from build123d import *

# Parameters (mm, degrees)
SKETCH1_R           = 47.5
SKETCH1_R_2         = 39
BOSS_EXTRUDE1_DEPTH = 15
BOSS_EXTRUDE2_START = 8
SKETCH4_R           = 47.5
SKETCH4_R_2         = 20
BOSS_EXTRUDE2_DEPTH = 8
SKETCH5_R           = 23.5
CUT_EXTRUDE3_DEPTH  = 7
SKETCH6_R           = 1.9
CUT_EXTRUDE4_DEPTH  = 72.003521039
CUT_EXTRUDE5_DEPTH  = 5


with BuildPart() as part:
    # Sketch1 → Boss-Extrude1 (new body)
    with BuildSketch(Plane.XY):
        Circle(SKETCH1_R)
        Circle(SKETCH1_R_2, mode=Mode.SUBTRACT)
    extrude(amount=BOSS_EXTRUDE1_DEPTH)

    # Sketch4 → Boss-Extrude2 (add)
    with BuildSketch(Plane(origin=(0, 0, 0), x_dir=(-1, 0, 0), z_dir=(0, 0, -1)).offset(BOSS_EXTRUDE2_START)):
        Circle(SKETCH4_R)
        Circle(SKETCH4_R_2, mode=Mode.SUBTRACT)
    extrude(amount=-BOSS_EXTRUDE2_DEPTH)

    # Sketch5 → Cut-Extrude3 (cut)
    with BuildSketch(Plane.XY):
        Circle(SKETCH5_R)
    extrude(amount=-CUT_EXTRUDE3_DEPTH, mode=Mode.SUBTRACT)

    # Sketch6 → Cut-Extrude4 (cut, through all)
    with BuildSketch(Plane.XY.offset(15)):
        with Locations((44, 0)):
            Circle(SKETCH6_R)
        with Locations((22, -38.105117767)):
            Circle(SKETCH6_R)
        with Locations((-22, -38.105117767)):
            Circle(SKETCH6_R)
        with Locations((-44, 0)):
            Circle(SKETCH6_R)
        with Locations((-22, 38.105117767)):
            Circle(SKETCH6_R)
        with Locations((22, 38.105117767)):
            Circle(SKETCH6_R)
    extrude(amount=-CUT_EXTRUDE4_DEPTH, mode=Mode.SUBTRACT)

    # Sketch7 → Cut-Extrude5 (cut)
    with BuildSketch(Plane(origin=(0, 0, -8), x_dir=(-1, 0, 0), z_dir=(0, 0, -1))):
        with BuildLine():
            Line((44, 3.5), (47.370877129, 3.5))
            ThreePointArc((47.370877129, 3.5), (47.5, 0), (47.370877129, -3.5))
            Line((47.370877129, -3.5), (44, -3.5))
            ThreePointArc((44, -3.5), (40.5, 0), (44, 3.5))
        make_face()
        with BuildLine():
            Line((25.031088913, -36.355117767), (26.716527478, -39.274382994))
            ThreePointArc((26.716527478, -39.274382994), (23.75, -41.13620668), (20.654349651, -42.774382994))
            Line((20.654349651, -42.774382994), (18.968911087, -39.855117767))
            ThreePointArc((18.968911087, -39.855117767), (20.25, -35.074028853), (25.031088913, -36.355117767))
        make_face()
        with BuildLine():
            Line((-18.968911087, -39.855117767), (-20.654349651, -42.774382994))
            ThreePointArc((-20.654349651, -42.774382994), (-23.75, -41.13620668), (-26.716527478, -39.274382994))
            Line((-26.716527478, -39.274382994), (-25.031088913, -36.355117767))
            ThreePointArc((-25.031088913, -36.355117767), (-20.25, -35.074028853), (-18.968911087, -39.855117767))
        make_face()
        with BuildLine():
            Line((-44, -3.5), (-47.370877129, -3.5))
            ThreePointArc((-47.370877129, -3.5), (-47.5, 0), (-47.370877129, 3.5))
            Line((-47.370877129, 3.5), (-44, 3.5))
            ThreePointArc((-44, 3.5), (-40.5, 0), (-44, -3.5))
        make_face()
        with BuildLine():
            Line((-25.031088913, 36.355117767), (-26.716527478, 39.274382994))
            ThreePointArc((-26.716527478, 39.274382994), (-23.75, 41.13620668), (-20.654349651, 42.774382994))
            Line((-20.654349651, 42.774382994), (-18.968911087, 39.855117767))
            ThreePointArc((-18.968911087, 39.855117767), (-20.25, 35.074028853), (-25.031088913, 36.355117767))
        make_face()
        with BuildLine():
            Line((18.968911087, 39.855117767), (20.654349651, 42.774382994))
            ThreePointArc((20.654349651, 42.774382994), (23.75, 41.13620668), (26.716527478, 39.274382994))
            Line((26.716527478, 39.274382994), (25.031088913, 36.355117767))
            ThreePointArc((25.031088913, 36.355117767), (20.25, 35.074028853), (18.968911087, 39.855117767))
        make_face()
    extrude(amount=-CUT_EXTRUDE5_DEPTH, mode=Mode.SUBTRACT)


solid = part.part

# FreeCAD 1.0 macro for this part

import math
import FreeCAD as App
import Part
import Sketcher

V = App.Vector
Q = App.Units.Quantity

doc = App.newDocument("Part")
body = doc.addObject("PartDesign::Body", "Body")

# Sketch on XY plane
sketch1 = doc.addObject("Sketcher::SketchObject", "Sketch")
body.addObject(sketch1)
sketch1.AttachmentSupport = (doc.XY_Plane, [""])
sketch1.MapMode = "FlatFace"
sketch1.addGeometry(Part.Circle(V(0, 0, 0), V(0, 0, 1), 48), False)
sketch1.addGeometry(Part.Circle(V(0, 0, 0), V(0, 0, 1), 39), False)
sketch1.addConstraint(Sketcher.Constraint("Coincident", 0, 3, -1, 1))
sketch1.addConstraint(Sketcher.Constraint("Coincident", 1, 3, -1, 1))
sketch1.addConstraint(Sketcher.Constraint("Diameter", 0, Q("95 mm")))
sketch1.addConstraint(Sketcher.Constraint("Diameter", 1, Q("78 mm")))
pad1 = doc.addObject("PartDesign::Pad", "Pad")
body.addObject(pad1)
pad1.Profile = sketch1
pad1.Length = 15

# Sketch on XY plane
sketch2 = doc.addObject("Sketcher::SketchObject", "Sketch001")
body.addObject(sketch2)
sketch2.AttachmentSupport = (doc.XY_Plane, [""])
sketch2.MapMode = "FlatFace"
sketch2.AttachmentOffset = App.Placement(V(0, 0, -8), App.Rotation())
sketch2.addGeometry(Part.Circle(V(0, 0, 0), V(0, 0, 1), 48), False)
sketch2.addGeometry(Part.Circle(V(0, 0, 0), V(0, 0, 1), 20), False)
sketch2.addConstraint(Sketcher.Constraint("Coincident", 0, 3, -1, 1))
sketch2.addConstraint(Sketcher.Constraint("Coincident", 1, 3, -1, 1))
sketch2.addConstraint(Sketcher.Constraint("Diameter", 0, Q("95 mm")))
sketch2.addConstraint(Sketcher.Constraint("Diameter", 1, Q("40 mm")))
pad2 = doc.addObject("PartDesign::Pad", "Pad001")
body.addObject(pad2)
pad2.Profile = sketch2
pad2.Length = 8

# Sketch on XY plane
sketch3 = doc.addObject("Sketcher::SketchObject", "Sketch002")
body.addObject(sketch3)
sketch3.AttachmentSupport = (doc.XY_Plane, [""])
sketch3.MapMode = "FlatFace"
sketch3.addGeometry(Part.Circle(V(0, 0, 0), V(0, 0, 1), 24), False)
sketch3.addConstraint(Sketcher.Constraint("Coincident", 0, 3, -1, 1))
sketch3.addConstraint(Sketcher.Constraint("Diameter", 0, Q("47 mm")))
pocket1 = doc.addObject("PartDesign::Pocket", "Pocket")
body.addObject(pocket1)
pocket1.Profile = sketch3
pocket1.Length = 7

# Sketch on XY plane
sketch4 = doc.addObject("Sketcher::SketchObject", "Sketch003")
body.addObject(sketch4)
sketch4.AttachmentSupport = (doc.XY_Plane, [""])
sketch4.MapMode = "FlatFace"
sketch4.AttachmentOffset = App.Placement(V(0, 0, 15), App.Rotation())
sketch4.addGeometry(Part.Circle(V(44, 0, 0), V(0, 0, 1), 1.9), False)
sketch4.addGeometry(Part.Circle(V(22, -38.1, 0), V(0, 0, 1), 1.9), False)
sketch4.addGeometry(Part.Circle(V(-22, -38.1, 0), V(0, 0, 1), 1.9), False)
sketch4.addGeometry(Part.Circle(V(-44, 0, 0), V(0, 0, 1), 1.9), False)
sketch4.addGeometry(Part.Circle(V(-22, 38.1, 0), V(0, 0, 1), 1.9), False)
sketch4.addGeometry(Part.Circle(V(22, 38.1, 0), V(0, 0, 1), 1.9), False)
sketch4.addConstraint(Sketcher.Constraint("Equal", 0, 1))
sketch4.addConstraint(Sketcher.Constraint("Equal", 1, 2))
sketch4.addConstraint(Sketcher.Constraint("Equal", 2, 3))
sketch4.addConstraint(Sketcher.Constraint("Equal", 3, 4))
sketch4.addConstraint(Sketcher.Constraint("Equal", 4, 5))
sketch4.addConstraint(Sketcher.Constraint("Symmetric", 0, 3, 3, 3, -1, 1))
sketch4.addConstraint(Sketcher.Constraint("Symmetric", 1, 3, 4, 3, -1, 1))
sketch4.addConstraint(Sketcher.Constraint("Symmetric", 2, 3, 5, 3, -1, 1))
sketch4.addConstraint(Sketcher.Constraint("Symmetric", 1, 3, 2, 3, -2))
sketch4.addConstraint(Sketcher.Constraint("PointOnObject", 0, 3, -1))
sketch4.addConstraint(Sketcher.Constraint("Diameter", 0, Q("3.8 mm")))
sketch4.addConstraint(Sketcher.Constraint("DistanceX", -1, 1, 0, 3, Q("44 mm")))
sketch4.addConstraint(Sketcher.Constraint("DistanceX", -1, 1, 1, 3, Q("22 mm")))
sketch4.addConstraint(Sketcher.Constraint("DistanceY", 1, 3, -1, 1, Q("38.105118 mm")))
pocket2 = doc.addObject("PartDesign::Pocket", "Pocket001")
body.addObject(pocket2)
pocket2.Profile = sketch4
pocket2.Type = "ThroughAll"

# Sketch on XY plane
sketch5 = doc.addObject("Sketcher::SketchObject", "Sketch004")
body.addObject(sketch5)
sketch5.AttachmentSupport = (doc.XY_Plane, [""])
sketch5.MapMode = "FlatFace"
sketch5.AttachmentOffset = App.Placement(V(0, 0, -8), App.Rotation())
sketch5.addGeometry(Part.LineSegment(V(-47.4, 3.5, 0), V(-44, 3.5, 0)), False)
sketch5.addGeometry(Part.ArcOfCircle(Part.Circle(V(-44, 0, 0), V(0, 0, 1), 3.5), math.radians(-90), math.radians(90)), False)
sketch5.addGeometry(Part.LineSegment(V(-44, -3.5, 0), V(-47.4, -3.5, 0)), False)
sketch5.addGeometry(Part.ArcOfCircle(Part.Circle(V(0, 0, 0), V(0, 0, 1), 47.5), math.radians(175.77), math.radians(184.23)), False)
sketch5.addGeometry(Part.LineSegment(V(-26.7, -39.3, 0), V(-25, -36.4, 0)), False)
sketch5.addGeometry(Part.ArcOfCircle(Part.Circle(V(-22, -38.1, 0), V(0, 0, 1), 3.5), math.radians(-30), math.radians(150)), False)
sketch5.addGeometry(Part.LineSegment(V(-19, -39.9, 0), V(-20.7, -42.8, 0)), False)
sketch5.addGeometry(Part.ArcOfCircle(Part.Circle(V(0, 0, 0), V(0, 0, 1), 47.5), math.radians(-124.23), math.radians(-115.77)), False)
sketch5.addGeometry(Part.LineSegment(V(20.7, -42.8, 0), V(19, -39.9, 0)), False)
sketch5.addGeometry(Part.ArcOfCircle(Part.Circle(V(22, -38.1, 0), V(0, 0, 1), 3.5), math.radians(30), math.radians(210)), False)
sketch5.addGeometry(Part.LineSegment(V(25, -36.4, 0), V(26.7, -39.3, 0)), False)
sketch5.addGeometry(Part.ArcOfCircle(Part.Circle(V(0, 0, 0), V(0, 0, 1), 47.5), math.radians(-64.23), math.radians(-55.77)), False)
sketch5.addGeometry(Part.LineSegment(V(47.4, -3.5, 0), V(44, -3.5, 0)), False)
sketch5.addGeometry(Part.ArcOfCircle(Part.Circle(V(44, 0, 0), V(0, 0, 1), 3.5), math.radians(90), math.radians(270)), False)
sketch5.addGeometry(Part.LineSegment(V(44, 3.5, 0), V(47.4, 3.5, 0)), False)
sketch5.addGeometry(Part.ArcOfCircle(Part.Circle(V(0, 0, 0), V(0, 0, 1), 47.5), math.radians(-4.23), math.radians(4.23)), False)
sketch5.addGeometry(Part.LineSegment(V(26.7, 39.3, 0), V(25, 36.4, 0)), False)
sketch5.addGeometry(Part.ArcOfCircle(Part.Circle(V(22, 38.1, 0), V(0, 0, 1), 3.5), math.radians(150), math.radians(330)), False)
sketch5.addGeometry(Part.LineSegment(V(19, 39.9, 0), V(20.7, 42.8, 0)), False)
sketch5.addGeometry(Part.ArcOfCircle(Part.Circle(V(0, 0, 0), V(0, 0, 1), 47.5), math.radians(55.77), math.radians(64.23)), False)
sketch5.addGeometry(Part.LineSegment(V(-20.7, 42.8, 0), V(-19, 39.9, 0)), False)
sketch5.addGeometry(Part.ArcOfCircle(Part.Circle(V(-22, 38.1, 0), V(0, 0, 1), 3.5), math.radians(-150), math.radians(30)), False)
sketch5.addGeometry(Part.LineSegment(V(-25, 36.4, 0), V(-26.7, 39.3, 0)), False)
sketch5.addGeometry(Part.ArcOfCircle(Part.Circle(V(0, 0, 0), V(0, 0, 1), 47.5), math.radians(115.77), math.radians(124.23)), False)
sketch5.addConstraint(Sketcher.Constraint("Tangent", 0, 2, 1, 2))
sketch5.addConstraint(Sketcher.Constraint("Tangent", 1, 1, 2, 1))
sketch5.addConstraint(Sketcher.Constraint("Coincident", 2, 2, 3, 2))
sketch5.addConstraint(Sketcher.Constraint("Coincident", 3, 1, 0, 1))
sketch5.addConstraint(Sketcher.Constraint("Tangent", 4, 2, 5, 2))
sketch5.addConstraint(Sketcher.Constraint("Tangent", 5, 1, 6, 1))
sketch5.addConstraint(Sketcher.Constraint("Coincident", 6, 2, 7, 2))
sketch5.addConstraint(Sketcher.Constraint("Coincident", 7, 1, 4, 1))
sketch5.addConstraint(Sketcher.Constraint("Tangent", 8, 2, 9, 2))
sketch5.addConstraint(Sketcher.Constraint("Tangent", 9, 1, 10, 1))
sketch5.addConstraint(Sketcher.Constraint("Coincident", 10, 2, 11, 2))
sketch5.addConstraint(Sketcher.Constraint("Coincident", 11, 1, 8, 1))
sketch5.addConstraint(Sketcher.Constraint("Tangent", 12, 2, 13, 2))
sketch5.addConstraint(Sketcher.Constraint("Tangent", 13, 1, 14, 1))
sketch5.addConstraint(Sketcher.Constraint("Coincident", 14, 2, 15, 2))
sketch5.addConstraint(Sketcher.Constraint("Coincident", 15, 1, 12, 1))
sketch5.addConstraint(Sketcher.Constraint("Tangent", 16, 2, 17, 2))
sketch5.addConstraint(Sketcher.Constraint("Tangent", 17, 1, 18, 1))
sketch5.addConstraint(Sketcher.Constraint("Coincident", 18, 2, 19, 2))
sketch5.addConstraint(Sketcher.Constraint("Coincident", 19, 1, 16, 1))
sketch5.addConstraint(Sketcher.Constraint("Tangent", 20, 2, 21, 2))
sketch5.addConstraint(Sketcher.Constraint("Tangent", 21, 1, 22, 1))
sketch5.addConstraint(Sketcher.Constraint("Coincident", 22, 2, 23, 2))
sketch5.addConstraint(Sketcher.Constraint("Coincident", 23, 1, 20, 1))
sketch5.addConstraint(Sketcher.Constraint("Horizontal", 0))
sketch5.addConstraint(Sketcher.Constraint("Horizontal", 2))
sketch5.addConstraint(Sketcher.Constraint("Horizontal", 12))
sketch5.addConstraint(Sketcher.Constraint("Horizontal", 14))
sketch5.addConstraint(Sketcher.Constraint("Coincident", 3, 3, -1, 1))
sketch5.addConstraint(Sketcher.Constraint("Coincident", 7, 3, -1, 1))
sketch5.addConstraint(Sketcher.Constraint("Coincident", 11, 3, -1, 1))
sketch5.addConstraint(Sketcher.Constraint("Coincident", 15, 3, -1, 1))
sketch5.addConstraint(Sketcher.Constraint("Coincident", 19, 3, -1, 1))
sketch5.addConstraint(Sketcher.Constraint("Coincident", 23, 3, -1, 1))
sketch5.addConstraint(Sketcher.Constraint("Equal", 1, 5))
sketch5.addConstraint(Sketcher.Constraint("Equal", 3, 7))
sketch5.addConstraint(Sketcher.Constraint("Equal", 5, 9))
sketch5.addConstraint(Sketcher.Constraint("Equal", 7, 11))
sketch5.addConstraint(Sketcher.Constraint("Equal", 9, 13))
sketch5.addConstraint(Sketcher.Constraint("Equal", 11, 15))
sketch5.addConstraint(Sketcher.Constraint("Equal", 13, 17))
sketch5.addConstraint(Sketcher.Constraint("Equal", 15, 19))
sketch5.addConstraint(Sketcher.Constraint("Equal", 17, 21))
sketch5.addConstraint(Sketcher.Constraint("Equal", 19, 23))
sketch5.addConstraint(Sketcher.Constraint("Symmetric", 1, 3, 13, 3, -1, 1))
sketch5.addConstraint(Sketcher.Constraint("Symmetric", 5, 3, 17, 3, -1, 1))
sketch5.addConstraint(Sketcher.Constraint("Symmetric", 9, 3, 21, 3, -1, 1))
sketch5.addConstraint(Sketcher.Constraint("Symmetric", 5, 3, 9, 3, -2))
sketch5.addConstraint(Sketcher.Constraint("PointOnObject", 1, 3, -1))
sketch5.addConstraint(Sketcher.Constraint("Parallel", 4, 6))
sketch5.addConstraint(Sketcher.Constraint("Parallel", 8, 10))
sketch5.addConstraint(Sketcher.Constraint("Parallel", 6, 16))
sketch5.addConstraint(Sketcher.Constraint("Parallel", 16, 18))
sketch5.addConstraint(Sketcher.Constraint("Parallel", 10, 20))
sketch5.addConstraint(Sketcher.Constraint("Parallel", 20, 22))
sketch5.addConstraint(Sketcher.Constraint("Horizontal", 5, 1, 8, 2))
sketch5.addConstraint(Sketcher.Constraint("Equal", 4, 6))
sketch5.addConstraint(Sketcher.Constraint("Radius", 1, Q("3.5 mm")))
sketch5.addConstraint(Sketcher.Constraint("Radius", 3, Q("47.5 mm")))
sketch5.addConstraint(Sketcher.Constraint("Angle", 4, Q("60 deg")))
sketch5.addConstraint(Sketcher.Constraint("DistanceX", 1, 3, -1, 1, Q("44 mm")))
sketch5.addConstraint(Sketcher.Constraint("DistanceX", 5, 3, -1, 1, Q("22 mm")))
pocket3 = doc.addObject("PartDesign::Pocket", "Pocket002")
body.addObject(pocket3)
pocket3.Profile = sketch5
pocket3.Length = 5
pocket3.Reversed = True

doc.recompute()
